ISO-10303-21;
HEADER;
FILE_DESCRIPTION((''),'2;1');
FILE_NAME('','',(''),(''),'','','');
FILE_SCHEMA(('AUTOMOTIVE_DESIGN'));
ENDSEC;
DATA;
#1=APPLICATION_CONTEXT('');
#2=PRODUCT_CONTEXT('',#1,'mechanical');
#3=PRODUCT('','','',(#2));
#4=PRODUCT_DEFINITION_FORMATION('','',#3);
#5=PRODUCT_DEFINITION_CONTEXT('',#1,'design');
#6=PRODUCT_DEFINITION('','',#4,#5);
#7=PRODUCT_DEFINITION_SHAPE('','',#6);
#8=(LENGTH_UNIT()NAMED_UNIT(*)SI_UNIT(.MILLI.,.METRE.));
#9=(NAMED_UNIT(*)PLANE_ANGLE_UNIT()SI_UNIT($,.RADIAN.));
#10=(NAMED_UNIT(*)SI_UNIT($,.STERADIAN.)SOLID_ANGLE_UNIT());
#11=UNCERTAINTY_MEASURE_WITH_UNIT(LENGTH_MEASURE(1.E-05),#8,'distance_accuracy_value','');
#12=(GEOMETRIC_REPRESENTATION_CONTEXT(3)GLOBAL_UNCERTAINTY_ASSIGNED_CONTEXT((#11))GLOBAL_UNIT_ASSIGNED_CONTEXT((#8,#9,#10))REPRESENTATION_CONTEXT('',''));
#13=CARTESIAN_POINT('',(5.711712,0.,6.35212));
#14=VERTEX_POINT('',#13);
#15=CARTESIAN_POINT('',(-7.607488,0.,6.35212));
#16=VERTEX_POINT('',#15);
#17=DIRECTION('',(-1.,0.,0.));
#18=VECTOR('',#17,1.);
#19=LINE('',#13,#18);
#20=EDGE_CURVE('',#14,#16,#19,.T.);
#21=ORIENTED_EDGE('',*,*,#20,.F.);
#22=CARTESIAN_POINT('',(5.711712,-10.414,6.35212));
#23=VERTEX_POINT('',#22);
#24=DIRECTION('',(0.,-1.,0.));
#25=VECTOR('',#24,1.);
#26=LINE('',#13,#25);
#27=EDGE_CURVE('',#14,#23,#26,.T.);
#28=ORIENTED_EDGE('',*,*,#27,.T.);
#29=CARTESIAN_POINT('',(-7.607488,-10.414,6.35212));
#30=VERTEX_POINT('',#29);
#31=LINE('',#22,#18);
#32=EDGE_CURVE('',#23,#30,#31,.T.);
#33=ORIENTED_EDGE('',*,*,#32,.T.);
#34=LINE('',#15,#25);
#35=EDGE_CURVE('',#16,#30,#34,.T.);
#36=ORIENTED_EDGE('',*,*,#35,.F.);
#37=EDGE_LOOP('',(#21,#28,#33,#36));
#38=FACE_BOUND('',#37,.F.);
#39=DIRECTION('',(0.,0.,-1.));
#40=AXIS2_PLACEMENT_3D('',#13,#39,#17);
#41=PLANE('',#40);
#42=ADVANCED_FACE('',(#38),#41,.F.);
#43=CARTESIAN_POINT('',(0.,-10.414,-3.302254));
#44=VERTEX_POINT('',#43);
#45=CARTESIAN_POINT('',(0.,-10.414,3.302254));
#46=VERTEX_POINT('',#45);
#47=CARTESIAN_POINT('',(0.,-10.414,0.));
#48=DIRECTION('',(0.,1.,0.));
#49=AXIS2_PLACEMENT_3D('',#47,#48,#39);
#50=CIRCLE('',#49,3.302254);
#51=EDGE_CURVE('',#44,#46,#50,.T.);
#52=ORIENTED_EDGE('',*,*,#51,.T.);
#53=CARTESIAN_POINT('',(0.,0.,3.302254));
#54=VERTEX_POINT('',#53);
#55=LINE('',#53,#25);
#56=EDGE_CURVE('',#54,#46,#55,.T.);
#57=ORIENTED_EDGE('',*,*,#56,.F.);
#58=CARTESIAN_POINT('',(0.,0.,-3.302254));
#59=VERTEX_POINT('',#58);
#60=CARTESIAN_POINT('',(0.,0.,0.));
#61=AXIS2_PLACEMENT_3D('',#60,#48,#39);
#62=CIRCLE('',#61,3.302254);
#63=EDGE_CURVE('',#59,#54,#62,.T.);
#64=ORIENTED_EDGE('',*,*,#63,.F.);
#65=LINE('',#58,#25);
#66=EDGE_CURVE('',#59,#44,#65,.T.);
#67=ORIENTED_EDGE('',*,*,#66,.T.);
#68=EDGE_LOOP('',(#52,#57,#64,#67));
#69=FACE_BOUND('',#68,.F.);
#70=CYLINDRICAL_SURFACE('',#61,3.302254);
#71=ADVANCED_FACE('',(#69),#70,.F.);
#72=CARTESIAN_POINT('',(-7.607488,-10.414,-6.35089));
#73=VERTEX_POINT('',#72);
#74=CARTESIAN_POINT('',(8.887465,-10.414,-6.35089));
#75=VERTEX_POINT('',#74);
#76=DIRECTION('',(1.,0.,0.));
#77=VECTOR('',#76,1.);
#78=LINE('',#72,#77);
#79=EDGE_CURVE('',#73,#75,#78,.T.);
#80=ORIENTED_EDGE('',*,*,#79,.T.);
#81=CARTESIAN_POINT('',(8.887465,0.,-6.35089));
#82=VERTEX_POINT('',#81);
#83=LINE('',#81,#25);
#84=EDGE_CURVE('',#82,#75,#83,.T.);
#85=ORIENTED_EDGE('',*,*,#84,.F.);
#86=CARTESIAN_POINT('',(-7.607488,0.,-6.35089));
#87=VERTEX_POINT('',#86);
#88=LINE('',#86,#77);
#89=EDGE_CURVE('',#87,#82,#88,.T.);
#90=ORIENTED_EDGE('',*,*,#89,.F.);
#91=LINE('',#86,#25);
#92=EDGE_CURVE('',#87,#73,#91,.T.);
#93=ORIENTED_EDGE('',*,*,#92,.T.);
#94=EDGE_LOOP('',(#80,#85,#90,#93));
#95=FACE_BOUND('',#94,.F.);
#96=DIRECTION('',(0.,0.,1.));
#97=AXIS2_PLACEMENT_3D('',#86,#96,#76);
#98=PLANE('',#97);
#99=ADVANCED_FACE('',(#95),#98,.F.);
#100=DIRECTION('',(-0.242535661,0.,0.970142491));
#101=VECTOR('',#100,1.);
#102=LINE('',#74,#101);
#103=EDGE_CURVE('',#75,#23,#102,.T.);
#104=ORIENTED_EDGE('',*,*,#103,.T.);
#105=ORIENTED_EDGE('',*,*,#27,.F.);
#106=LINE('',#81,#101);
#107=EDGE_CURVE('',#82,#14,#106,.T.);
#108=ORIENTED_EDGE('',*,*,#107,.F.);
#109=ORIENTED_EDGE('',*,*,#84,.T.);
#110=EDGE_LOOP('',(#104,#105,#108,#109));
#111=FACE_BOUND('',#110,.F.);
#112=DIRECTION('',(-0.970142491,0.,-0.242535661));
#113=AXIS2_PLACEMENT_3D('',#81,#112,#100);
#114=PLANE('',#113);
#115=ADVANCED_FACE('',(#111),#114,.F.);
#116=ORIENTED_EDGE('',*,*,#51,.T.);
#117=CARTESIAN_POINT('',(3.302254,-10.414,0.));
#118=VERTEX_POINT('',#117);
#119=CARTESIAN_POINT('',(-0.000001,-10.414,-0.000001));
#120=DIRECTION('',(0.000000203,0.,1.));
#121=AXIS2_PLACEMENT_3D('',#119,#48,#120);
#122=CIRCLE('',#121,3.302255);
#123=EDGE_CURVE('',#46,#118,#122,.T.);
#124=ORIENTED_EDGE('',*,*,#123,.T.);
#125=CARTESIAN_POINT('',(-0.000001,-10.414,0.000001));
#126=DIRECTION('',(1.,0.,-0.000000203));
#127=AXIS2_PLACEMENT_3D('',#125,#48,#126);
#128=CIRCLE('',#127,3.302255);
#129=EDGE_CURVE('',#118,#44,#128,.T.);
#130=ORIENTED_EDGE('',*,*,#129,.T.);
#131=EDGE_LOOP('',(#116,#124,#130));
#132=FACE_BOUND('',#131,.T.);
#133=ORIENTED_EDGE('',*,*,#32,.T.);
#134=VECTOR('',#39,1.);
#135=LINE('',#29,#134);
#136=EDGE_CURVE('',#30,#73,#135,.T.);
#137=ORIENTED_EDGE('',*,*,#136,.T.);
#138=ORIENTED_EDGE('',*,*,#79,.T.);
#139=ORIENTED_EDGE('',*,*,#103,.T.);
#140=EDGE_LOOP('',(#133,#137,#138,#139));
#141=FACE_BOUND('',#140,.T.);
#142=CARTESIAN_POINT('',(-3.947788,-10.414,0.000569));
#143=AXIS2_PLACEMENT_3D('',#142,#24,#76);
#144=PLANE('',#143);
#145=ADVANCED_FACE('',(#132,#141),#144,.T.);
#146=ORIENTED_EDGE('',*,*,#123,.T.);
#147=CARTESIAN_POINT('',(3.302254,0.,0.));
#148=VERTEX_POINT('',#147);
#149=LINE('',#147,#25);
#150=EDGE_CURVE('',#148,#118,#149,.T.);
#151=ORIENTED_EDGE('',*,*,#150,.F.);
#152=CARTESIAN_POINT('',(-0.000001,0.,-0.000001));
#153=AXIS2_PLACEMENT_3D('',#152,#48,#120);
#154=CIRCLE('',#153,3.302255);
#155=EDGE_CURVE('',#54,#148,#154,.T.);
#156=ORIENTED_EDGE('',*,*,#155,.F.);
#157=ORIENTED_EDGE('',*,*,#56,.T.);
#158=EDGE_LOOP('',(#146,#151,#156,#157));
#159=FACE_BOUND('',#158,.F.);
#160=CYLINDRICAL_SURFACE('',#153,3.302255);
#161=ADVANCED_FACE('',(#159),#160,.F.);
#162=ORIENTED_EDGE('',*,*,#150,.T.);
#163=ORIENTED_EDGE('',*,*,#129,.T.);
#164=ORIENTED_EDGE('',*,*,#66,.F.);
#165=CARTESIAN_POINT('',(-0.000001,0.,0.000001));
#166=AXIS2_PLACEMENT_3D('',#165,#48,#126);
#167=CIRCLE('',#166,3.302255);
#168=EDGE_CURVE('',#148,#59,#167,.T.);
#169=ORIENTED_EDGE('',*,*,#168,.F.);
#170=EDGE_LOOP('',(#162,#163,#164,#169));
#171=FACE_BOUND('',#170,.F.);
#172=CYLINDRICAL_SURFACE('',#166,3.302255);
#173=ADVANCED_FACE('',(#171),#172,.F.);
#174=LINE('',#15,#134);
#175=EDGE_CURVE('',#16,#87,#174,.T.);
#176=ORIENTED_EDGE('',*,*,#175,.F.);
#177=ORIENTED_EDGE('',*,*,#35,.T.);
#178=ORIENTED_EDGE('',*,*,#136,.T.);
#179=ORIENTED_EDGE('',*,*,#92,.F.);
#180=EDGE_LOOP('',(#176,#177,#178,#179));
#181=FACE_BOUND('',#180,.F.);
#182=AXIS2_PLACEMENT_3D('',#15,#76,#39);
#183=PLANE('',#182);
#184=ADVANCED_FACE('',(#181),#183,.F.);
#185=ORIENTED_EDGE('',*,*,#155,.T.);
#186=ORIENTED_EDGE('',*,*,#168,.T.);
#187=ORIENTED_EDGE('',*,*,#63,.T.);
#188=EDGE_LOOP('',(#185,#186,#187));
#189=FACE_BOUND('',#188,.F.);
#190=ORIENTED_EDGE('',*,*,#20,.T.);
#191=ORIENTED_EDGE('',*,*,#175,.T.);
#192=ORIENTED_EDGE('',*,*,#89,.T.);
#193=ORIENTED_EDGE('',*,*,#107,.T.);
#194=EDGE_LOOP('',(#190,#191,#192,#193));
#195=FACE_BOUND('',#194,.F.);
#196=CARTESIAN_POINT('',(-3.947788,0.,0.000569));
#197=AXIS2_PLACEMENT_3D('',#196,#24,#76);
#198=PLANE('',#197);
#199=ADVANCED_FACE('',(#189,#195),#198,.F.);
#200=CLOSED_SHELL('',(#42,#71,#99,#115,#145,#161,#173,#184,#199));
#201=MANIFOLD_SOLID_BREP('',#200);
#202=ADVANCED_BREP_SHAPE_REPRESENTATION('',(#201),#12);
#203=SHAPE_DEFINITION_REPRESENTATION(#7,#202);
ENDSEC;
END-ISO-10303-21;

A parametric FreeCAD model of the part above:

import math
import FreeCAD as App
import Part
import Sketcher

V = App.Vector
Q = App.Units.Quantity

doc = App.newDocument("Part")
params = doc.addObject("Spreadsheet::Sheet", "Params")
for row, (alias, value) in enumerate([
    ("pad1_length", "0.41 in"),
], start=1):
    params.set(f"A{row}", alias)
    params.set(f"B{row}", "=" + value)
    params.setAlias(f"B{row}", alias)

body = doc.addObject("PartDesign::Body", "Body")

sketch1 = body.newObject("Sketcher::SketchObject", "Sketch")
sketch1.AttachmentSupport = (doc.getObject("XZ_Plane"), [""])
sketch1.MapMode = "FlatFace"
sketch1.addGeometry(Part.LineSegment(V(-7.6, 6.4, 0), V(-7.6, -6.4, 0)), False)
sketch1.addGeometry(Part.LineSegment(V(-7.6, -6.4, 0), V(8.9, -6.4, 0)), False)
sketch1.addGeometry(Part.LineSegment(V(8.9, -6.4, 0), V(5.7, 6.4, 0)), False)
sketch1.addGeometry(Part.LineSegment(V(5.7, 6.4, 0), V(-7.6, 6.4, 0)), False)
sketch1.addGeometry(Part.ArcOfCircle(Part.Circle(V(0, 0, 0), V(0, 0, 1), 3.3), math.radians(90), math.radians(270)), False)
sketch1.addGeometry(Part.ArcOfCircle(Part.Circle(V(0, 0, 0), V(0, 0, 1), 3.3), math.radians(0), math.radians(90)), False)
sketch1.addGeometry(Part.ArcOfCircle(Part.Circle(V(0, 0, 0), V(0, 0, 1), 3.3), math.radians(-90), math.radians(0)), False)
sketch1.addConstraint(Sketcher.Constraint("Coincident", 0, 2, 1, 1))
sketch1.addConstraint(Sketcher.Constraint("Coincident", 1, 2, 2, 1))
sketch1.addConstraint(Sketcher.Constraint("Coincident", 2, 2, 3, 1))
sketch1.addConstraint(Sketcher.Constraint("Coincident", 3, 2, 0, 1))
sketch1.addConstraint(Sketcher.Constraint("Tangent", 4, 1, 5, 2))
sketch1.addConstraint(Sketcher.Constraint("Tangent", 5, 1, 6, 2))
sketch1.addConstraint(Sketcher.Constraint("Tangent", 6, 1, 4, 2))
sketch1.addConstraint(Sketcher.Constraint("Vertical", 0))
sketch1.addConstraint(Sketcher.Constraint("Horizontal", 1))
sketch1.addConstraint(Sketcher.Constraint("Horizontal", 3))
sketch1.addConstraint(Sketcher.Constraint("Coincident", 4, 3, -1, 1))
sketch1.addConstraint(Sketcher.Constraint("PointOnObject", 4, 1, -2))
sketch1.addConstraint(Sketcher.Constraint("PointOnObject", 5, 1, -1))
sketch1.addConstraint(Sketcher.Constraint("PointOnObject", 6, 1, -2))
sketch1.addConstraint(Sketcher.Constraint("DistanceX", 3, 2, 3, 1, Q("13.3192 mm")))
sketch1.addConstraint(Sketcher.Constraint("DistanceX", -1, 1, 1, 2, Q("0.3499002 in")))
sketch1.addConstraint(Sketcher.Constraint("Radius", 4, Q("3.302254 mm")))
sketch1.addConstraint(Sketcher.Constraint("DistanceY", 0, 2, 0, 1, Q("12.70301 mm")))
sketch1.addConstraint(Sketcher.Constraint("DistanceX", 1, 1, 1, 2, Q("16.494953 mm")))
sketch1.addConstraint(Sketcher.Constraint("DistanceY", 0, 2, -1, 1, Q("6.35089 mm")))
pad1 = body.newObject("PartDesign::Pad", "Pad")
pad1.Profile = sketch1
pad1.setExpression("Length", "Params.pad1_length")

doc.recompute()
